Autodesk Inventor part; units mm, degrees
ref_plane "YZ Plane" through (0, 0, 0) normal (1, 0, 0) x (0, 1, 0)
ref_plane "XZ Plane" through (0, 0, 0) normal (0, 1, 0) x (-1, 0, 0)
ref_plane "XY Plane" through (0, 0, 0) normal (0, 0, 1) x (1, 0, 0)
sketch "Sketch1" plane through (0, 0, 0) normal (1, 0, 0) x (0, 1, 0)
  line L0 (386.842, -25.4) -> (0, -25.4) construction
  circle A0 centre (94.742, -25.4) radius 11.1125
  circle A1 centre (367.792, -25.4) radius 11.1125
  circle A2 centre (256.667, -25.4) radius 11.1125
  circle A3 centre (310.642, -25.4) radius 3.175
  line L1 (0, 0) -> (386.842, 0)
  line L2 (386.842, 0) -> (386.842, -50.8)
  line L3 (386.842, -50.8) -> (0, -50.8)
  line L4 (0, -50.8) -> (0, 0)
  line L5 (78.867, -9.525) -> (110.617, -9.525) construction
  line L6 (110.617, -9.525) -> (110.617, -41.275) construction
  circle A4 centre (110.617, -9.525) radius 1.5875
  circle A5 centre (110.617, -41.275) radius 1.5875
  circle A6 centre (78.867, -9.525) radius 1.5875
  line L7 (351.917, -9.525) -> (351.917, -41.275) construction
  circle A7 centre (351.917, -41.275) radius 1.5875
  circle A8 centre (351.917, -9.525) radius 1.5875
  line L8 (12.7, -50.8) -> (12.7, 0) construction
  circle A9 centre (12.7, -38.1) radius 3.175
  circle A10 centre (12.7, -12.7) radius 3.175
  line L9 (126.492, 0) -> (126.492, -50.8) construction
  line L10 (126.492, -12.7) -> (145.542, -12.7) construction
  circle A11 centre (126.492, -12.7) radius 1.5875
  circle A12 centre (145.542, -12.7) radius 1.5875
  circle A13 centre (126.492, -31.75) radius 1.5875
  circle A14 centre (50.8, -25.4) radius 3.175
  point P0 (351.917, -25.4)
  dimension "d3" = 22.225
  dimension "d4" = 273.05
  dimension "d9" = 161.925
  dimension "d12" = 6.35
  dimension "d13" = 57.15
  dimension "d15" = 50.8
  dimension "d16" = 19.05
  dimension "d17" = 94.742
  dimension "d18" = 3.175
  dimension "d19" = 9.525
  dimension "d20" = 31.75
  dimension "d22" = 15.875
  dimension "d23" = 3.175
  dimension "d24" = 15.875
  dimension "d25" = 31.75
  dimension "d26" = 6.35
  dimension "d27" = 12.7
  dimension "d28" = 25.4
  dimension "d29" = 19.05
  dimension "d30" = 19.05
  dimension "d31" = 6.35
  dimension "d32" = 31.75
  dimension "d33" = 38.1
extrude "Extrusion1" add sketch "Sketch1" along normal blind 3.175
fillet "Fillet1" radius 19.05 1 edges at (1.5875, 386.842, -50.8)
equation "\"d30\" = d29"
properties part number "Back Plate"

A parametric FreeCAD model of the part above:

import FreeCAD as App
import Part
import Sketcher

V = App.Vector
Q = App.Units.Quantity


def edges_at(feature, points):
    """Names of the edges that pass closest to the given points."""
    edges = feature.Shape.Edges
    near = lambda p: min(range(len(edges)), key=lambda i: edges[i].distToShape(Part.Vertex(*p))[0])
    return sorted({f"Edge{near(p) + 1}" for p in points})

doc = App.newDocument("Part")
body = doc.addObject("PartDesign::Body", "Body")

sketch1 = doc.addObject("Sketcher::SketchObject", "Sketch")
body.addObject(sketch1)
sketch1.AttachmentSupport = (doc.YZ_Plane, [""])
sketch1.MapMode = "FlatFace"
sketch1.addGeometry(Part.LineSegment(V(386.8, 0, 0), V(0, 0, 0)), False)
sketch1.addGeometry(Part.LineSegment(V(0, 0, 0), V(0, -50.8, 0)), False)
sketch1.addGeometry(Part.LineSegment(V(0, -50.8, 0), V(386.8, -50.8, 0)), False)
sketch1.addGeometry(Part.LineSegment(V(386.8, -50.8, 0), V(386.8, 0, 0)), False)
sketch1.addGeometry(Part.Circle(V(12.7, -38.1, 0), V(0, 0, 1), 3.2), False)
sketch1.addGeometry(Part.Circle(V(110.6, -41.3, 0), V(0, 0, 1), 1.6), False)
sketch1.addGeometry(Part.Circle(V(50.8, -25.4, 0), V(0, 0, 1), 3.2), False)
sketch1.addGeometry(Part.Circle(V(94.7, -25.4, 0), V(0, 0, 1), 11.1), False)
sketch1.addGeometry(Part.Circle(V(126.5, -31.8, 0), V(0, 0, 1), 1.6), False)
sketch1.addGeometry(Part.Circle(V(351.9, -41.3, 0), V(0, 0, 1), 1.6), False)
sketch1.addGeometry(Part.Circle(V(256.7, -25.4, 0), V(0, 0, 1), 11.1), False)
sketch1.addGeometry(Part.Circle(V(310.6, -25.4, 0), V(0, 0, 1), 3.2), False)
sketch1.addGeometry(Part.Circle(V(367.8, -25.4, 0), V(0, 0, 1), 11.1), False)
sketch1.addGeometry(Part.Circle(V(12.7, -12.7, 0), V(0, 0, 1), 3.2), False)
sketch1.addGeometry(Part.Circle(V(126.5, -12.7, 0), V(0, 0, 1), 1.6), False)
sketch1.addGeometry(Part.Circle(V(145.5, -12.7, 0), V(0, 0, 1), 1.6), False)
sketch1.addGeometry(Part.Circle(V(78.9, -9.5, 0), V(0, 0, 1), 1.6), False)
sketch1.addGeometry(Part.Circle(V(110.6, -9.5, 0), V(0, 0, 1), 1.6), False)
sketch1.addGeometry(Part.Circle(V(351.9, -9.5, 0), V(0, 0, 1), 1.6), False)
sketch1.addConstraint(Sketcher.Constraint("Coincident", 0, 2, 1, 1))
sketch1.addConstraint(Sketcher.Constraint("Coincident", 1, 2, 2, 1))
sketch1.addConstraint(Sketcher.Constraint("Coincident", 2, 2, 3, 1))
sketch1.addConstraint(Sketcher.Constraint("Coincident", 3, 2, 0, 1))
sketch1.addConstraint(Sketcher.Constraint("Horizontal", 0))
sketch1.addConstraint(Sketcher.Constraint("Vertical", 1))
sketch1.addConstraint(Sketcher.Constraint("Horizontal", 2))
sketch1.addConstraint(Sketcher.Constraint("Vertical", 3))
sketch1.addConstraint(Sketcher.Constraint("Coincident", 0, 2, -1, 1))
sketch1.addConstraint(Sketcher.Constraint("Equal", 4, 6))
sketch1.addConstraint(Sketcher.Constraint("Equal", 5, 8))
sketch1.addConstraint(Sketcher.Constraint("Equal", 8, 9))
sketch1.addConstraint(Sketcher.Constraint("Equal", 7, 10))
sketch1.addConstraint(Sketcher.Constraint("Equal", 6, 11))
sketch1.addConstraint(Sketcher.Constraint("Equal", 10, 12))
sketch1.addConstraint(Sketcher.Constraint("Equal", 11, 13))
sketch1.addConstraint(Sketcher.Constraint("Equal", 9, 14))
sketch1.addConstraint(Sketcher.Constraint("Equal", 14, 15))
sketch1.addConstraint(Sketcher.Constraint("Equal", 15, 16))
sketch1.addConstraint(Sketcher.Constraint("Equal", 16, 17))
sketch1.addConstraint(Sketcher.Constraint("Equal", 17, 18))
sketch1.addConstraint(Sketcher.Constraint("Horizontal", 6, 3, 7, 3))
sketch1.addConstraint(Sketcher.Constraint("Horizontal", 5, 3, 9, 3))
sketch1.addConstraint(Sketcher.Constraint("Horizontal", 7, 3, 10, 3))
sketch1.addConstraint(Sketcher.Constraint("Horizontal", 10, 3, 11, 3))
sketch1.addConstraint(Sketcher.Constraint("Horizontal", 11, 3, 12, 3))
sketch1.addConstraint(Sketcher.Constraint("Horizontal", 13, 3, 14, 3))
sketch1.addConstraint(Sketcher.Constraint("Horizontal", 14, 3, 15, 3))
sketch1.addConstraint(Sketcher.Constraint("Horizontal", 16, 3, 17, 3))
sketch1.addConstraint(Sketcher.Constraint("Horizontal", 17, 3, 18, 3))
sketch1.addConstraint(Sketcher.Constraint("Vertical", 4, 3, 13, 3))
sketch1.addConstraint(Sketcher.Constraint("Vertical", 8, 3, 14, 3))
sketch1.addConstraint(Sketcher.Constraint("Vertical", 5, 3, 17, 3))
sketch1.addConstraint(Sketcher.Constraint("Vertical", 9, 3, 18, 3))
sketch1.addConstraint(Sketcher.Constraint("Diameter", 4, Q("0.25 in")))
sketch1.addConstraint(Sketcher.Constraint("DistanceY", 1, 2, 1, 1, Q("2 in")))
sketch1.addConstraint(Sketcher.Constraint("Diameter", 5, Q("0.125 in")))
sketch1.addConstraint(Sketcher.Constraint("Diameter", 7, Q("0.875 in")))
sketch1.addConstraint(Sketcher.Constraint("DistanceX", -1, 1, 6, 3, Q("2 in")))
sketch1.addConstraint(Sketcher.Constraint("DistanceY", 6, 3, -1, 1, Q("1 in")))
sketch1.addConstraint(Sketcher.Constraint("DistanceY", 4, 3, 13, 3, Q("1 in")))
sketch1.addConstraint(Sketcher.Constraint("DistanceX", 7, 3, 15, 3, Q("2 in")))
sketch1.addConstraint(Sketcher.Constraint("DistanceX", -1, 1, 4, 3, Q("0.5 in")))
sketch1.addConstraint(Sketcher.Constraint("DistanceY", 4, 3, -1, 1, Q("1.5 in")))
sketch1.addConstraint(Sketcher.Constraint("DistanceX", -1, 1, 7, 3, Q("3.73 in")))
sketch1.addConstraint(Sketcher.Constraint("DistanceY", 8, 3, -1, 1, Q("1.25 in")))
sketch1.addConstraint(Sketcher.Constraint("DistanceX", 7, 3, 8, 3, Q("1.25 in")))
sketch1.addConstraint(Sketcher.Constraint("DistanceX", 11, 3, 12, 3, Q("2.25 in")))
sketch1.addConstraint(Sketcher.Constraint("DistanceX", 16, 3, 5, 3, Q("1.25 in")))
sketch1.addConstraint(Sketcher.Constraint("DistanceY", 5, 3, 16, 3, Q("1.25 in")))
sketch1.addConstraint(Sketcher.Constraint("DistanceX", 12, 3, 2, 2, Q("0.75 in")))
sketch1.addConstraint(Sketcher.Constraint("DistanceY", 16, 3, -1, 1, Q("0.375 in")))
sketch1.addConstraint(Sketcher.Constraint("DistanceX", 7, 3, 5, 3, Q("0.625 in")))
sketch1.addConstraint(Sketcher.Constraint("DistanceX", 7, 3, 10, 3, Q("6.375 in")))
sketch1.addConstraint(Sketcher.Constraint("DistanceX", 9, 3, 12, 3, Q("0.625 in")))
sketch1.addConstraint(Sketcher.Constraint("DistanceX", 0, 2, 0, 1, Q("15.23 in")))
pad1 = doc.addObject("PartDesign::Pad", "Pad")
body.addObject(pad1)
pad1.Profile = sketch1
pad1.Length = Q("0.125 in")
doc.recompute()

fillet = doc.addObject("PartDesign::Fillet", "Fillet")
body.addObject(fillet)
fillet.Base = (pad1, edges_at(pad1, [(1.587, 386.842, -50.8)]))
fillet.Radius = Q("0.75 in")

doc.recompute()
